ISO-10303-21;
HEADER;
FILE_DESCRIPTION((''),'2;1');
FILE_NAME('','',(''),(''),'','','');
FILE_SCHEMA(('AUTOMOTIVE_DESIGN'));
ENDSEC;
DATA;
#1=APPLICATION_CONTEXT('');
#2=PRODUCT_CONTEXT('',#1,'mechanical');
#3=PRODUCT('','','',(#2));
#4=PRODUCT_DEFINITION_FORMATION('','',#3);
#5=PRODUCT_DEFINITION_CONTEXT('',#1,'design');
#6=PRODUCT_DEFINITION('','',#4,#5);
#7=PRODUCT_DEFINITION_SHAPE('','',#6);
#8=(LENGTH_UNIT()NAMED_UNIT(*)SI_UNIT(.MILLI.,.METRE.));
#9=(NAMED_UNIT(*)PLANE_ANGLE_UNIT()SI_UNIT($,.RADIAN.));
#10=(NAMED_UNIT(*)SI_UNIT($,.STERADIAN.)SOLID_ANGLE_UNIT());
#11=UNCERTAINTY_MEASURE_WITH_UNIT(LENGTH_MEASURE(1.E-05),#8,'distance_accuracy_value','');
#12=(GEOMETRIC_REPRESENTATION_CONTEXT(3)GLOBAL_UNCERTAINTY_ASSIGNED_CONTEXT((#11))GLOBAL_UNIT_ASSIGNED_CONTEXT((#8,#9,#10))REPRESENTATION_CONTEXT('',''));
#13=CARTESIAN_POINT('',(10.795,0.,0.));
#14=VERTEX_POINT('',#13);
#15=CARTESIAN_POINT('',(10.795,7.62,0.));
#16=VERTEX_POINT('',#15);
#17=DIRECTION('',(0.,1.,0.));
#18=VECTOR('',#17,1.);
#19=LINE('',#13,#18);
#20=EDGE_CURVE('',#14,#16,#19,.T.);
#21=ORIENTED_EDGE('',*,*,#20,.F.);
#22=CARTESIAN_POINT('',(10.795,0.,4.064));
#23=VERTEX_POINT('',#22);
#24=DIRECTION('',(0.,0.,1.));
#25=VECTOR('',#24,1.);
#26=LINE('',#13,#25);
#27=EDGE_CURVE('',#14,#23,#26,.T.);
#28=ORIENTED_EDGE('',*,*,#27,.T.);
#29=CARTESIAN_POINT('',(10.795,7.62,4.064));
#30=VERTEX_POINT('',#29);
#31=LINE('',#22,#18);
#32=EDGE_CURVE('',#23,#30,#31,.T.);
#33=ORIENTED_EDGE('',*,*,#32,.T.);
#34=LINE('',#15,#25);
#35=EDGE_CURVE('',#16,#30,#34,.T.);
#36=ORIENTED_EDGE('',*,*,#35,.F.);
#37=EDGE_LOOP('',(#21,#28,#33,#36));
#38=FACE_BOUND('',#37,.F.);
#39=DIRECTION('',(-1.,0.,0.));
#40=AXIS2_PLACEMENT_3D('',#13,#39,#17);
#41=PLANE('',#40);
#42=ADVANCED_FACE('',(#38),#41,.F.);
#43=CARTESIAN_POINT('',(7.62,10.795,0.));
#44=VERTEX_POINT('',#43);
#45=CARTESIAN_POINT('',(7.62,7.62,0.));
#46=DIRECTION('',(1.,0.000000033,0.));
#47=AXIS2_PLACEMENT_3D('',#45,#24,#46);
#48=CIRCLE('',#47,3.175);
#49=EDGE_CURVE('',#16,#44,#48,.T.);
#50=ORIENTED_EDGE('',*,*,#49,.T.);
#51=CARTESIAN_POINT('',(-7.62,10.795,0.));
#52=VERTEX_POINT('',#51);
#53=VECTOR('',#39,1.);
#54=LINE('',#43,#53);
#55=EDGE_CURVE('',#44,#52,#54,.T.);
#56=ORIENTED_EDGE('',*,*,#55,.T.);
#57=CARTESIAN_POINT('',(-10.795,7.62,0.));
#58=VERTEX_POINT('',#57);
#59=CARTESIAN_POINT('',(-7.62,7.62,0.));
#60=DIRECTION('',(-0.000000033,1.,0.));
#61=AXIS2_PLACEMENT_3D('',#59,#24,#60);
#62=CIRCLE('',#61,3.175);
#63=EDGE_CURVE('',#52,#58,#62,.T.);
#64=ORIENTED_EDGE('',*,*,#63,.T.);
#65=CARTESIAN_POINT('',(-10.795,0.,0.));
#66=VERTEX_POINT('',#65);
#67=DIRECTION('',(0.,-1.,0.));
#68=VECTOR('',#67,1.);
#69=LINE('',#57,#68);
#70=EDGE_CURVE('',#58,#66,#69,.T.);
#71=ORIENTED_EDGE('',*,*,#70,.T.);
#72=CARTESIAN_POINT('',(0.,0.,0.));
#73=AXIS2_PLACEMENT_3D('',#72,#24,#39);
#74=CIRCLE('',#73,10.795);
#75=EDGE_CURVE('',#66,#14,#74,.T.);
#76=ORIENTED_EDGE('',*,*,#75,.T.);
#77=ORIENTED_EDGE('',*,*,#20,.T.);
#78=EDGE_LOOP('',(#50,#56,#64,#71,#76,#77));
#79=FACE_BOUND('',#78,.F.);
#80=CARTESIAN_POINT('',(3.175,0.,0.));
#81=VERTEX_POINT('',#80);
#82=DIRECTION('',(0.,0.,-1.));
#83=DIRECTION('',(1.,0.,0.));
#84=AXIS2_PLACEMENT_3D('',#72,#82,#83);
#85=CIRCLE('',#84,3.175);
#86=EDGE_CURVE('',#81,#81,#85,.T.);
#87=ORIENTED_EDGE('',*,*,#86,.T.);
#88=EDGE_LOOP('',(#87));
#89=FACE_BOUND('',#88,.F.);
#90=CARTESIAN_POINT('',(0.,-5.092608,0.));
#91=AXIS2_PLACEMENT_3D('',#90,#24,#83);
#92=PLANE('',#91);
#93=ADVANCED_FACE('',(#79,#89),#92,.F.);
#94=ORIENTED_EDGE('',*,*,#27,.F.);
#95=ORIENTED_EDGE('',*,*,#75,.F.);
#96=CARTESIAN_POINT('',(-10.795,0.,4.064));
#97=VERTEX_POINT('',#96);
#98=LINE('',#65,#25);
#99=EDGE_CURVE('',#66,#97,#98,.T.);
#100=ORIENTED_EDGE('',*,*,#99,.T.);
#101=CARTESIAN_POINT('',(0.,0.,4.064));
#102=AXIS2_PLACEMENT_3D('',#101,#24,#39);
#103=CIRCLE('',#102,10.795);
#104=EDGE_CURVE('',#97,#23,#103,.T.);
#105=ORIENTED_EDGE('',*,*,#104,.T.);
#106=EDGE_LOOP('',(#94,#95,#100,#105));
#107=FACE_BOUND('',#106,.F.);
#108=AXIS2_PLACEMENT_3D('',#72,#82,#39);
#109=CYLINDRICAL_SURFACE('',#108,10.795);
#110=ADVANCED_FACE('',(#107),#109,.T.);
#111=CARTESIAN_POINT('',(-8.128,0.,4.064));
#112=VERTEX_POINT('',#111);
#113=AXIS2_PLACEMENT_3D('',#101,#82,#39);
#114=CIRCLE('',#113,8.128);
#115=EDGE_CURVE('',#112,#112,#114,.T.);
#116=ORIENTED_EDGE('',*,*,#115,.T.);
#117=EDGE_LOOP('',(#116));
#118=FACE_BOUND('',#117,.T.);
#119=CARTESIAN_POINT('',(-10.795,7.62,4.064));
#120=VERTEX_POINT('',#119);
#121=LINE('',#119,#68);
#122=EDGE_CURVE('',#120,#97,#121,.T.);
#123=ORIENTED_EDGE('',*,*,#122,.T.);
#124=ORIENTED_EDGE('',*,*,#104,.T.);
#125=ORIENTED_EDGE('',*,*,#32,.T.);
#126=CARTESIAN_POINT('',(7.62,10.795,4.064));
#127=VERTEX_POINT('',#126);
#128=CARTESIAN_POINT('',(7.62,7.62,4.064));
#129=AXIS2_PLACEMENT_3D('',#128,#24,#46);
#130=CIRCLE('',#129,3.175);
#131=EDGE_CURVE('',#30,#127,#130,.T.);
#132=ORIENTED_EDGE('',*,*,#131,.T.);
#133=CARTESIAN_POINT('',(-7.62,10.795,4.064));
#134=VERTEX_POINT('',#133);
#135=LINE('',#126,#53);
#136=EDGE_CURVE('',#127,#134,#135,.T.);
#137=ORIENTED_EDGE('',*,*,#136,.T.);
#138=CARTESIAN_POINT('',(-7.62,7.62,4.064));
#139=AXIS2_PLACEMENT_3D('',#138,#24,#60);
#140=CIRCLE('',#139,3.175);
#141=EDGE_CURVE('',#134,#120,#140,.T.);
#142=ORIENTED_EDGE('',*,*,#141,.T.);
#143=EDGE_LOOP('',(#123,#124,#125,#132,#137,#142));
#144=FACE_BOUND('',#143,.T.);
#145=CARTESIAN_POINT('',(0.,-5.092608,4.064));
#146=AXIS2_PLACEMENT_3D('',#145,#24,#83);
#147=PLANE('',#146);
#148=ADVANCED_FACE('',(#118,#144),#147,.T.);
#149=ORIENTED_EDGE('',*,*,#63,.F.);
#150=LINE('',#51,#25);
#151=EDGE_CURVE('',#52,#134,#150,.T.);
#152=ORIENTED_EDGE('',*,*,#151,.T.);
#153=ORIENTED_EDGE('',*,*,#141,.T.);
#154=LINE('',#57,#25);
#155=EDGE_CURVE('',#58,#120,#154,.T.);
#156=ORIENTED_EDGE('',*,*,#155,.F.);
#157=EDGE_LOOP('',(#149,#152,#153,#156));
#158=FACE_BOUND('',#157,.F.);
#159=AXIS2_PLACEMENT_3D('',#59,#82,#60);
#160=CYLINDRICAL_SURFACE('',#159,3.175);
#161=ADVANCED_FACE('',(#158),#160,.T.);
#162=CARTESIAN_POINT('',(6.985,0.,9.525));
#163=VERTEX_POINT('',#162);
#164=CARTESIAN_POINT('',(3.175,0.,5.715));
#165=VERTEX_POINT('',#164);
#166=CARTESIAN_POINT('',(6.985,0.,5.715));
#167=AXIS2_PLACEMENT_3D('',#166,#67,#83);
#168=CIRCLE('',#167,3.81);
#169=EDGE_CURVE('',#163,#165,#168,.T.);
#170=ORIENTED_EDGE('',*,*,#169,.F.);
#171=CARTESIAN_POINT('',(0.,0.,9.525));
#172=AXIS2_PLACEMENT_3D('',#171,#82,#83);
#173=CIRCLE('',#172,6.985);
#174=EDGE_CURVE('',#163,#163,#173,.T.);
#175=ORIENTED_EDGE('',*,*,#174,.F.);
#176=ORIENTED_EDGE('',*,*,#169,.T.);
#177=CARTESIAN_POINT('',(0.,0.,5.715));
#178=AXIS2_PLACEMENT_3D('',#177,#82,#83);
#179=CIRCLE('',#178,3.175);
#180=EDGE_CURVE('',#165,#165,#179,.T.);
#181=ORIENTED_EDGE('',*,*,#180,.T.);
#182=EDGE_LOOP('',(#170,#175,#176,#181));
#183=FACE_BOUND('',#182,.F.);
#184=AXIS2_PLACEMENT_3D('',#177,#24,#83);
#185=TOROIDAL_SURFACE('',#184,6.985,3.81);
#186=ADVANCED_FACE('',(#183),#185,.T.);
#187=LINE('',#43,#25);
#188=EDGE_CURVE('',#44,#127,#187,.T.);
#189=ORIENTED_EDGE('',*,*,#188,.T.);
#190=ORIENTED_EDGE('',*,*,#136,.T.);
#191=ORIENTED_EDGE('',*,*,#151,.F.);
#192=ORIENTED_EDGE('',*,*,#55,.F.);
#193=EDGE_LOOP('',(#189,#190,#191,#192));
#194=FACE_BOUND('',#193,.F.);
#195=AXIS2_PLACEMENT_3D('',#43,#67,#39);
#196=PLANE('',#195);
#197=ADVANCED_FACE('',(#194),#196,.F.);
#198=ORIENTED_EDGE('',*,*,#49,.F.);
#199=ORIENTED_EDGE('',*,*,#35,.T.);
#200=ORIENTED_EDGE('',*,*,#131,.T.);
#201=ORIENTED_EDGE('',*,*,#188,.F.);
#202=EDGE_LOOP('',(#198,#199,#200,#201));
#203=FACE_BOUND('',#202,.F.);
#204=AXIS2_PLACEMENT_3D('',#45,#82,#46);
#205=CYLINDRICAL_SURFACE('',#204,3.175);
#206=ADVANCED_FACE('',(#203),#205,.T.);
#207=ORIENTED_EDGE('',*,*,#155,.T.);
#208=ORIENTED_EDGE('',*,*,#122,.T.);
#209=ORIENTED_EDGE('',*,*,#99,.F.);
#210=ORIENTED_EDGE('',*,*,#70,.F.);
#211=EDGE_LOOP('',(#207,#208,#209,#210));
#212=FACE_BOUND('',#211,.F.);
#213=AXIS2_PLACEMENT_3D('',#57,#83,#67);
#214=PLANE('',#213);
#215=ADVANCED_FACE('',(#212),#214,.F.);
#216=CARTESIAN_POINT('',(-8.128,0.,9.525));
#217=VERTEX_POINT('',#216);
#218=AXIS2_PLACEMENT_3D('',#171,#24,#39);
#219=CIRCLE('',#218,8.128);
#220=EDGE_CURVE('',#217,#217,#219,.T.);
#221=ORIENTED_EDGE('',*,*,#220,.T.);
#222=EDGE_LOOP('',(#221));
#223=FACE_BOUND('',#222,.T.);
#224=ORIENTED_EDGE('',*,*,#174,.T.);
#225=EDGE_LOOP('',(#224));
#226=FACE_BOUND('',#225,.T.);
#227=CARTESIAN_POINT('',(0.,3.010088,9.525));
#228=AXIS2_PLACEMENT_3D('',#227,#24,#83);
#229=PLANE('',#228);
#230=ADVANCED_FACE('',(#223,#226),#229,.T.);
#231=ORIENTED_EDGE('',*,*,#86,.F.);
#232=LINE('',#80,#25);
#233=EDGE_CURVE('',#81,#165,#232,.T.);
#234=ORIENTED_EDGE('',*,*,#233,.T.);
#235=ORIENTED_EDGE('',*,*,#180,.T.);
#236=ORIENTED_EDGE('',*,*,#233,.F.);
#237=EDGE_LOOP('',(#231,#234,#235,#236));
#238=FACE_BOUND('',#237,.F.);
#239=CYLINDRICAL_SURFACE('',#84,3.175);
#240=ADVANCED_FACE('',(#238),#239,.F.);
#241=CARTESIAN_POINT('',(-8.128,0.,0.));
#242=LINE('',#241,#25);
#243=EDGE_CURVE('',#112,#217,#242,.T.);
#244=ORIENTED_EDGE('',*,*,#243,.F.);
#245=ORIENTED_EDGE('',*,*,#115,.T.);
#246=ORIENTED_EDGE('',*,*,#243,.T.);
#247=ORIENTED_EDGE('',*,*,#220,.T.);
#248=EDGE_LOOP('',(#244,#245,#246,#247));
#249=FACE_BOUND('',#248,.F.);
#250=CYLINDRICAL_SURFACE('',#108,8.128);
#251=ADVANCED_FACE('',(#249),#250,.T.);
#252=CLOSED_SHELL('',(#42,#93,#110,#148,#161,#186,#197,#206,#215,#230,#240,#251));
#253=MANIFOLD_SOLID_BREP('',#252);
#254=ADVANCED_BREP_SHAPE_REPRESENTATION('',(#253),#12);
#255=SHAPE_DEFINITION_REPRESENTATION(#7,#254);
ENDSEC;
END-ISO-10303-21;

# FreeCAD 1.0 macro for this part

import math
import FreeCAD as App
import Part
import Sketcher
from FreeCAD import Vector
Q = App.Units.Quantity


def edges_at(feature, points):
    """Names of the edges that pass closest to the given points."""
    edges = feature.Shape.Edges
    near = lambda p: min(range(len(edges)), key=lambda i: edges[i].distToShape(Part.Vertex(*p))[0])
    return sorted({f"Edge{near(p) + 1}" for p in points})

doc = App.newDocument("Part")
body = doc.addObject("PartDesign::Body", "Body")

# Sketch on XY plane
sketch1 = body.newObject("Sketcher::SketchObject", "Sketch")
sketch1.AttachmentSupport = (doc.getObject("XY_Plane"), [""])
sketch1.MapMode = "FlatFace"
sketch1.addGeometry([
    Part.ArcOfCircle(Part.Circle(Vector(0, 0, 0), Vector(0, 0, 1), 10.795), math.radians(180), math.radians(360)),  # 0
    Part.LineSegment(Vector(10.795, 0, 0), Vector(10.795, 7.62, 0)),  # 1
    Part.ArcOfCircle(Part.Circle(Vector(7.62, 7.62, 0), Vector(0, 0, 1), 3.175), math.radians(0.000002), math.radians(89.999998)),  # 2
    Part.LineSegment(Vector(7.62, 10.795, 0), Vector(-7.62, 10.795, 0)),  # 3
    Part.ArcOfCircle(Part.Circle(Vector(-7.62, 7.62, 0), Vector(0, 0, 1), 3.175), math.radians(90.000002), math.radians(179.999998)),  # 4
    Part.LineSegment(Vector(-10.795, 7.62, 0), Vector(-10.795, 0, 0)),  # 5
    Part.Circle(Vector(0, 0, 0), Vector(0, 0, 1), 8.128),  # 6
], False)
sketch1.addConstraint([
    Sketcher.Constraint("Tangent", 0, 2, 1, 1),
    Sketcher.Constraint("Tangent", 1, 2, 2, 1),
    Sketcher.Constraint("Tangent", 2, 2, 3, 1),
    Sketcher.Constraint("Tangent", 3, 2, 4, 1),
    Sketcher.Constraint("Tangent", 4, 2, 5, 1),
    Sketcher.Constraint("Tangent", 5, 2, 0, 1),
    Sketcher.Constraint("Vertical", 1),
    Sketcher.Constraint("Horizontal", 3),
    Sketcher.Constraint("Vertical", 5),
    Sketcher.Constraint("Coincident", 0, 3, -1, 1),
    Sketcher.Constraint("Coincident", 6, 3, -1, 1),
    Sketcher.Constraint("Equal", 2, 4),
    Sketcher.Constraint("Diameter", 6, Q("0.64 in")),
    Sketcher.Constraint("DistanceX", 3, 2, 3, 1, Q("0.6 in")),
    Sketcher.Constraint("DistanceY", 1, 1, 1, 2, Q("0.3 in")),
    Sketcher.Constraint("Radius", 0, Q("0.425 in")),
])
pad1 = body.newObject("PartDesign::Pad", "Pad")
pad1.Profile = sketch1
pad1.Length = Q("0.16 in")

# Sketch on XY plane
sketch2 = body.newObject("Sketcher::SketchObject", "Sketch001")
sketch2.AttachmentSupport = (doc.getObject("XY_Plane"), [""])
sketch2.MapMode = "FlatFace"
sketch2.addGeometry([
    Part.Circle(Vector(0, 0, 0), Vector(0, 0, 1), 8.128),
    Part.Circle(Vector(0, 0, 0), Vector(0, 0, 1), 3.175),
], False)
sketch2.addConstraint([
    Sketcher.Constraint("Coincident", 0, 3, -1, 1),
    Sketcher.Constraint("Coincident", 1, 3, -1, 1),
    Sketcher.Constraint("Diameter", 0, Q("0.64 in")),
    Sketcher.Constraint("Diameter", 1, Q("0.25 in")),
])
pad2 = body.newObject("PartDesign::Pad", "Pad001")
pad2.Profile = sketch2
pad2.Length = Q("0.375 in")
doc.recompute()

fillet = body.newObject("PartDesign::Fillet", "Fillet")
fillet.Base = (pad2, edges_at(pad2, [(-3.175, 0, 9.525)]))
fillet.Radius = Q("0.15 in")

doc.recompute()
